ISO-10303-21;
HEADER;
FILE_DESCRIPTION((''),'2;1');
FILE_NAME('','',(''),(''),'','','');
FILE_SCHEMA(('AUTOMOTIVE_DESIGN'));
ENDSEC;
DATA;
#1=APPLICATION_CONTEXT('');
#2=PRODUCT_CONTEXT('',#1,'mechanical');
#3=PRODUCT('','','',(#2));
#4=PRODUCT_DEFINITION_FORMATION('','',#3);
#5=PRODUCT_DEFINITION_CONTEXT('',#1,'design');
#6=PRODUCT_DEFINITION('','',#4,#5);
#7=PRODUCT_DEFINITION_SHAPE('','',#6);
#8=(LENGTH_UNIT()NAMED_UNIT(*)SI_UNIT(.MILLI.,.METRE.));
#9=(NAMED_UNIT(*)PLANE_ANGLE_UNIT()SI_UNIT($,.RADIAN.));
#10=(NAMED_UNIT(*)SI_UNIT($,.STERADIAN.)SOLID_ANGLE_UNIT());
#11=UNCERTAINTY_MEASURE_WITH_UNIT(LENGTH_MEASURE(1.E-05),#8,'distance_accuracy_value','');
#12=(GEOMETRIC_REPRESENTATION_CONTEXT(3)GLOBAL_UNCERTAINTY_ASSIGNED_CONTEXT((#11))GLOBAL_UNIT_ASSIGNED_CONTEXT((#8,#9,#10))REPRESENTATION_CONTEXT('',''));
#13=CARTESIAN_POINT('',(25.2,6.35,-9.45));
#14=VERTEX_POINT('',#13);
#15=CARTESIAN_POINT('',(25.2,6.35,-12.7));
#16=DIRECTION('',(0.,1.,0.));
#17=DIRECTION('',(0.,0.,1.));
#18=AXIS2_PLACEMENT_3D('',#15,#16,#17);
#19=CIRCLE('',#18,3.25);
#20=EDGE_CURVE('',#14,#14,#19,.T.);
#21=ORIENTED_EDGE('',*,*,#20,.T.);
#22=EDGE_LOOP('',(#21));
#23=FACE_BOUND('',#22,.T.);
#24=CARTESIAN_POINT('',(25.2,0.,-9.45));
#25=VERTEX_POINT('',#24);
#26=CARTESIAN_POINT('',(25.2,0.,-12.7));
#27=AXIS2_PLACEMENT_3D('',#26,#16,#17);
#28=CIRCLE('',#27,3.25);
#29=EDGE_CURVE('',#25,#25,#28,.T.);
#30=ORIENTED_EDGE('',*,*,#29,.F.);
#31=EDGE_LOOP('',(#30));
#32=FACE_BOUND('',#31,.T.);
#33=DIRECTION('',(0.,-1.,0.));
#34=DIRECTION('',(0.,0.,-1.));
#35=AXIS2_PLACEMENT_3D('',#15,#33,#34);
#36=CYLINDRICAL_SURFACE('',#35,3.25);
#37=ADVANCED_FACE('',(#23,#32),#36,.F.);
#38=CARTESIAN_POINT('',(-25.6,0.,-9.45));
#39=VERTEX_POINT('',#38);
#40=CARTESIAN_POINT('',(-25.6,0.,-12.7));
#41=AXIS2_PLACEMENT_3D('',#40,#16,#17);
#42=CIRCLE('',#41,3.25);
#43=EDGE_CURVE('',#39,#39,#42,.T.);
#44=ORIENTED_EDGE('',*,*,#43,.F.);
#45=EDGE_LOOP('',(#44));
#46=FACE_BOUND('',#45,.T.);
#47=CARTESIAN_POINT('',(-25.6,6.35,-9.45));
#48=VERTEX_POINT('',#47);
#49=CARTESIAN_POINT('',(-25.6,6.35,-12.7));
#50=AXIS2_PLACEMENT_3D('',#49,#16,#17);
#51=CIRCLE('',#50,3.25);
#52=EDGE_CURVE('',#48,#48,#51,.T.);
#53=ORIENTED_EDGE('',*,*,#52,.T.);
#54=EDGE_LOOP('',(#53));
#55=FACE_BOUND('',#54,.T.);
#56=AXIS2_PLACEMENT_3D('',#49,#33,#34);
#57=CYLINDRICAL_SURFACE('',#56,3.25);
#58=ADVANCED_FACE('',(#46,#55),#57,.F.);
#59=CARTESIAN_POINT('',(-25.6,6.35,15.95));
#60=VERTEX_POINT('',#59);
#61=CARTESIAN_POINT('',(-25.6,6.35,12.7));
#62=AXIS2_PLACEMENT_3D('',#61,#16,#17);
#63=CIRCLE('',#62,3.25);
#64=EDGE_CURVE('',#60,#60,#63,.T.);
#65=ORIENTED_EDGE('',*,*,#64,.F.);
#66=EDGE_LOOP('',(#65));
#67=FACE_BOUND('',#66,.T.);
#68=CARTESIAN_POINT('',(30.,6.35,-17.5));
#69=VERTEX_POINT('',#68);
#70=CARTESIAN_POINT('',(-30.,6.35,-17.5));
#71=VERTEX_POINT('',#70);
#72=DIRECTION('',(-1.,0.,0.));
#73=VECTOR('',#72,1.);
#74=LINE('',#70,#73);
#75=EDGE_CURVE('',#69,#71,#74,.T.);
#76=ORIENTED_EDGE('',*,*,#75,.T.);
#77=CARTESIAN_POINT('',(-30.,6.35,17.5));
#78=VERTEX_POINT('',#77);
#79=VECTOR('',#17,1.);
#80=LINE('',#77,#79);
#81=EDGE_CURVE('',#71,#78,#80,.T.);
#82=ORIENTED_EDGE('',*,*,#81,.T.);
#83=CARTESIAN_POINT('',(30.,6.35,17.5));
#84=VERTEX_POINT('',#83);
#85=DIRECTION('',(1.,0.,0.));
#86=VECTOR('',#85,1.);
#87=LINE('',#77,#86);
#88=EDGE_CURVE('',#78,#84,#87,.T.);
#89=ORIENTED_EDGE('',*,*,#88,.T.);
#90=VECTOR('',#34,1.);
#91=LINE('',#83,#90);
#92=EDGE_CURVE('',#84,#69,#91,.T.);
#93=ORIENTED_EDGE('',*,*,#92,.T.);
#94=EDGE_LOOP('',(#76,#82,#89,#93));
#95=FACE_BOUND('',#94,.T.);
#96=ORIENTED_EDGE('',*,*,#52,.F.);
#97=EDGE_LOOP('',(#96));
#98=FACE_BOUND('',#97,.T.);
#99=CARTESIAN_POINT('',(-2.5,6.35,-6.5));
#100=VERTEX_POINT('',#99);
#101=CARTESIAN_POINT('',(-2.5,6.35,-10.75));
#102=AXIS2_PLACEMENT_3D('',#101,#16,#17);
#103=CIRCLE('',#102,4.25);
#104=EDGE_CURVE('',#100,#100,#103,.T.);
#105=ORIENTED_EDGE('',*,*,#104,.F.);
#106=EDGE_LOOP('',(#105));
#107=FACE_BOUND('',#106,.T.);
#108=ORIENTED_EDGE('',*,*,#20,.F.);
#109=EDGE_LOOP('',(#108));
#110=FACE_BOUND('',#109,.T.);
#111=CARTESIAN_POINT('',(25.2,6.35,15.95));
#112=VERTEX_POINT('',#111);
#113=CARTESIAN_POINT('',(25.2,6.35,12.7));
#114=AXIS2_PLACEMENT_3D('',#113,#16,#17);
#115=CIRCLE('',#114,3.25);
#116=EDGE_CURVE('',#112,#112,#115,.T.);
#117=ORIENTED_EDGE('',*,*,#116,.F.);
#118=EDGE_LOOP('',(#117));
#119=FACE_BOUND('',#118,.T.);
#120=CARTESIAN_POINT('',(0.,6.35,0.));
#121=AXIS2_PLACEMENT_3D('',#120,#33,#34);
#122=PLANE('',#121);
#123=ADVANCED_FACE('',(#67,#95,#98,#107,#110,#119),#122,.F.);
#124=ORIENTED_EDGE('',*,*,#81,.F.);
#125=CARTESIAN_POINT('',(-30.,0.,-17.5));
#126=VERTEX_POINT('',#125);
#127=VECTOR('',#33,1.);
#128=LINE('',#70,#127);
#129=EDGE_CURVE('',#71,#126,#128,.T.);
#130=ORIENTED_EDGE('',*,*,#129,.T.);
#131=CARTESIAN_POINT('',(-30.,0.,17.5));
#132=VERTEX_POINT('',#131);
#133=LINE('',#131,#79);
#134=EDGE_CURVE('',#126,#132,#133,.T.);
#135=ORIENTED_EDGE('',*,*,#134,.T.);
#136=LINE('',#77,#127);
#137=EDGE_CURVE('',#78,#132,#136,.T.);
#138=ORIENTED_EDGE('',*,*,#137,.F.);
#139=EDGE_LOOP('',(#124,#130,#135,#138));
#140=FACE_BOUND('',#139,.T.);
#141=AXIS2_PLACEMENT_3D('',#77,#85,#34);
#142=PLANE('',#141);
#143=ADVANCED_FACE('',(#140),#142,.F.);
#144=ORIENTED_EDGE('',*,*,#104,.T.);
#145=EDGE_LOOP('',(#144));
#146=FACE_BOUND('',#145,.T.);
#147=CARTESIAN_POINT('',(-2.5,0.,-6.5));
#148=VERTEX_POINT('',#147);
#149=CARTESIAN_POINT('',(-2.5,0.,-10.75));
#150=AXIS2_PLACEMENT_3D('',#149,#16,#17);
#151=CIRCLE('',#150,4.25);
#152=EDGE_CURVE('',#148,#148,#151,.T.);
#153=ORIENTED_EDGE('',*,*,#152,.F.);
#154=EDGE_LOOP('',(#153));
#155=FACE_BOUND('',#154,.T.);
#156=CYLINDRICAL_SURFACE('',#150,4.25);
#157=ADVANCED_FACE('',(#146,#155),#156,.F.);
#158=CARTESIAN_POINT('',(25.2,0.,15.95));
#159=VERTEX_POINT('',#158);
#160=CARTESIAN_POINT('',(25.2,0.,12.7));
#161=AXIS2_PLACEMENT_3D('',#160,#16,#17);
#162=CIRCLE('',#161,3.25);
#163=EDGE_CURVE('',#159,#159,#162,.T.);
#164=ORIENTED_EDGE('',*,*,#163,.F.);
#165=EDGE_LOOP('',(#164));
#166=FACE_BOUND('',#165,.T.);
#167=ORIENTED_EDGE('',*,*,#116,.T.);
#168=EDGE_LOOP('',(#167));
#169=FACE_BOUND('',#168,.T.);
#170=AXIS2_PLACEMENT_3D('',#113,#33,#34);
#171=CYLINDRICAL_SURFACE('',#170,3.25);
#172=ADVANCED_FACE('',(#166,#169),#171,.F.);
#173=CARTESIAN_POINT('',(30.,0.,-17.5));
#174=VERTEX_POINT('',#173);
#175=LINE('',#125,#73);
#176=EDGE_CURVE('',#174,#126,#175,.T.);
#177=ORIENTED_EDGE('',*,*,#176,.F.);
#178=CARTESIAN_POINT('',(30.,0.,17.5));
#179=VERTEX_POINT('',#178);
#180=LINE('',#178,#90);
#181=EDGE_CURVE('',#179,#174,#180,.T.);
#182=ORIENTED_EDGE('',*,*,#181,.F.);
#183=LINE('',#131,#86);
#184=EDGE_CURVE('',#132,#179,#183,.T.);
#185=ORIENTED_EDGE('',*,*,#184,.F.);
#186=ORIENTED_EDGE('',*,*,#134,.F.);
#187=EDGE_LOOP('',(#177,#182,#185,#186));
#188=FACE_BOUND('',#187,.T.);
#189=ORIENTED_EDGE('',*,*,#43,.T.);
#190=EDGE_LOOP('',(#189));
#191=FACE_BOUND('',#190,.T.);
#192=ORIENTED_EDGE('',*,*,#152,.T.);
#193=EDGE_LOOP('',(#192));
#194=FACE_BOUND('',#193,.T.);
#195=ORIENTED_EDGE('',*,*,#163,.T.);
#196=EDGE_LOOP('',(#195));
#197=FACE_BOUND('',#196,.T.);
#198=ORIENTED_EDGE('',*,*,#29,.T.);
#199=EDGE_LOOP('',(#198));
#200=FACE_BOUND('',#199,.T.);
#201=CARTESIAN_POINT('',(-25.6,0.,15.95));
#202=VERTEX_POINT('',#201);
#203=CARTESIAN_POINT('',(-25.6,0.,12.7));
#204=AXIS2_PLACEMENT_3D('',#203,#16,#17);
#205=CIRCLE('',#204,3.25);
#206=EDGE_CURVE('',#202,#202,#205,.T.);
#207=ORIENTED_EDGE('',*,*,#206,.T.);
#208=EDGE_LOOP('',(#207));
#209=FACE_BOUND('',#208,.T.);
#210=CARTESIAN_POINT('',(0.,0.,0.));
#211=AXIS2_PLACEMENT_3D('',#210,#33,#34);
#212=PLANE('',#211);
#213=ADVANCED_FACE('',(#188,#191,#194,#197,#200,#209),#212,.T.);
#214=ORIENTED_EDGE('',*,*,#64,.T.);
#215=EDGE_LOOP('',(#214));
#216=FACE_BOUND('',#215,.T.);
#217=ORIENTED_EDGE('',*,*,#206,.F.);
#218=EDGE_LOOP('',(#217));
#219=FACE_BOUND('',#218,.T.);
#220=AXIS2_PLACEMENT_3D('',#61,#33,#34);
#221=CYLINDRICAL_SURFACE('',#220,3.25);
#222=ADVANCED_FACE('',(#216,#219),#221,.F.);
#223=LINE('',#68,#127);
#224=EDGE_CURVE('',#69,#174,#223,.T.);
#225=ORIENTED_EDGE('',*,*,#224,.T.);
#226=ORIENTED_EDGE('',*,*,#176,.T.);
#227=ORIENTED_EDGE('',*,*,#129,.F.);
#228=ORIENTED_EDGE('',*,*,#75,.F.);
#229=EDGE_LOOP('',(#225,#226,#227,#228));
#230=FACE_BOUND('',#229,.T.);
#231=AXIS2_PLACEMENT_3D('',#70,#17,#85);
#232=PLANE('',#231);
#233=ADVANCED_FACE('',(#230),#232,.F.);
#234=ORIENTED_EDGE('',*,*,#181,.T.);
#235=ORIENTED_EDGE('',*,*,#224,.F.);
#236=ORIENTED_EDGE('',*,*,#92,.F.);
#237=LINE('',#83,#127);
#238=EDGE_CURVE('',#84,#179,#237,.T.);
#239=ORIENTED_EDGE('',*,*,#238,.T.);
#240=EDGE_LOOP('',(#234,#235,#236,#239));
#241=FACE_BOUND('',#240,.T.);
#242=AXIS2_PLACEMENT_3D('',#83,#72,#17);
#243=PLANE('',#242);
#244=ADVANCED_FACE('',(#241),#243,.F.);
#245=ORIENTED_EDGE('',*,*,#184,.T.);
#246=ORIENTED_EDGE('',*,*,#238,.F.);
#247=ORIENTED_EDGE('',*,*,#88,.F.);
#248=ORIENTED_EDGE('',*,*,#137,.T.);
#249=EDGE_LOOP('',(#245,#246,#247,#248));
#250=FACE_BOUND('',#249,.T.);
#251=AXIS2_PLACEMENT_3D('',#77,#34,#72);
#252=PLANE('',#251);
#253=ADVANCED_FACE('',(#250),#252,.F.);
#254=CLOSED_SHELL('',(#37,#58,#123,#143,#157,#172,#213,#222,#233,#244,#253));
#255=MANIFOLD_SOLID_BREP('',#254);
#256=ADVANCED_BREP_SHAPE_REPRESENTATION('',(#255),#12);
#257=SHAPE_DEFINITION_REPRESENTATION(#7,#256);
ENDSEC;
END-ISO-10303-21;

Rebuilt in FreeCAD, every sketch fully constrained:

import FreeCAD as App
import Part
import Sketcher
from FreeCAD import Vector


def add_polygon(sketch, points):
    """Adds a closed chain of lines whose ends are joined by coincident constraints."""
    first, n = sketch.GeometryCount, len(points)
    for a, b in zip(points, points[1:] + points[:1]):
        sketch.addGeometry(Part.LineSegment(App.Vector(*a, 0), App.Vector(*b, 0)), False)
    for i in range(n):
        sketch.addConstraint(Sketcher.Constraint("Coincident", first + i, 2, first + (i + 1) % n, 1))

doc = App.newDocument("Part")
body = doc.addObject("PartDesign::Body", "Body")

# Sketch on XZ plane
sketch1 = body.newObject("Sketcher::SketchObject", "Sketch")
sketch1.AttachmentSupport = (doc.getObject("XZ_Plane"), [""])
sketch1.MapMode = "FlatFace"
add_polygon(sketch1, [(-30, -17.5), (-30, 17.5), (30, 17.5), (30, -17.5)])  # lines 0-3
sketch1.addGeometry(Part.Circle(Vector(-25.6, 12.7, 0), Vector(0, 0, 1), 3.25), False)  # 4
sketch1.addGeometry(Part.Circle(Vector(25.2, 12.7, 0), Vector(0, 0, 1), 3.25), False)  # 5
sketch1.addGeometry(Part.Circle(Vector(-25.6, -12.7, 0), Vector(0, 0, 1), 3.25), False)  # 6
sketch1.addGeometry(Part.Circle(Vector(25.2, -12.7, 0), Vector(0, 0, 1), 3.25), False)  # 7
sketch1.addConstraint([
    Sketcher.Constraint("Vertical", 0),
    Sketcher.Constraint("Horizontal", 1),
    Sketcher.Constraint("Vertical", 2),
    Sketcher.Constraint("Horizontal", 3),
    Sketcher.Constraint("Equal", 4, 5),
    Sketcher.Constraint("Equal", 5, 6),
    Sketcher.Constraint("Equal", 6, 7),
    Sketcher.Constraint("Symmetric", 0, 2, 2, 2, -1, 1),
    Sketcher.Constraint("Symmetric", 4, 3, 6, 3, -1),
    Sketcher.Constraint("Symmetric", 5, 3, 7, 3, -1),
    Sketcher.Constraint("Horizontal", 4, 3, 5, 3),
    Sketcher.Constraint("Diameter", 4, 6.5),
    Sketcher.Constraint("DistanceX", 1, 1, 1, 2, 60.0),
    Sketcher.Constraint("DistanceY", 0, 1, 0, 2, 35.0),
    Sketcher.Constraint("DistanceX", 4, 3, -1, 1, 25.6),
    Sketcher.Constraint("DistanceY", -1, 1, 4, 3, 12.7),
    Sketcher.Constraint("DistanceX", -1, 1, 5, 3, 25.2),
])
pad1 = body.newObject("PartDesign::Pad", "Pad")
pad1.Profile = sketch1
pad1.Length = 6.35
pad1.Reversed = True

# Sketch on XZ plane
sketch2 = body.newObject("Sketcher::SketchObject", "Sketch001")
sketch2.AttachmentSupport = (doc.getObject("XZ_Plane"), [""])
sketch2.MapMode = "FlatFace"
sketch2.AttachmentOffset = App.Placement(Vector(0, 0, -6.35), App.Rotation())
sketch2.addGeometry(Part.Circle(Vector(-2.5, -10.75, 0), Vector(0, 0, 1), 4.25), False)
sketch2.addConstraint([
    Sketcher.Constraint("Diameter", 0, 8.5),
    Sketcher.Constraint("DistanceX", 0, 3, -1, 1, 2.5),
    Sketcher.Constraint("DistanceY", 0, 3, -1, 1, 10.75),
])
pocket1 = body.newObject("PartDesign::Pocket", "Pocket")
pocket1.Profile = sketch2
pocket1.Type = "ThroughAll"
pocket1.Reversed = True

doc.recompute()
